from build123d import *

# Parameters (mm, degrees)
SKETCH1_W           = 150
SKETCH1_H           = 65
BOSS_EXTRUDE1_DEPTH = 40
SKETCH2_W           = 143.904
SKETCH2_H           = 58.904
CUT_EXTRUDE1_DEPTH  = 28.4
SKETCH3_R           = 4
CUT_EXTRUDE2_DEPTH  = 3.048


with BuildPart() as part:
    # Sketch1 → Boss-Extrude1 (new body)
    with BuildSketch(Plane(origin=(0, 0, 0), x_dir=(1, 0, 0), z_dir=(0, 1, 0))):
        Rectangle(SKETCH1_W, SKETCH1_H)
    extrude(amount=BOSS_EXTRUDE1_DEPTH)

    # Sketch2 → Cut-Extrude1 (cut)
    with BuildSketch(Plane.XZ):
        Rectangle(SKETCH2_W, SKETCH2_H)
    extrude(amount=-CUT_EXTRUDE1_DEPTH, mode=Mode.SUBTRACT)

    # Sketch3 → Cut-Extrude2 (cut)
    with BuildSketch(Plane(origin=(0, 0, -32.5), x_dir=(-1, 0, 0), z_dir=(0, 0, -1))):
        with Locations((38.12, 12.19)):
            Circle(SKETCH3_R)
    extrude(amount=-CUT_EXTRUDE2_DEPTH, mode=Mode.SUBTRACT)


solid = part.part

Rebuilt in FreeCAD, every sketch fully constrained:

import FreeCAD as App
import Part
import Sketcher

V = App.Vector
Q = App.Units.Quantity


def add_polygon(sketch, points):
    """Adds a closed chain of lines whose ends are joined by coincident constraints."""
    first, n = sketch.GeometryCount, len(points)
    for a, b in zip(points, points[1:] + points[:1]):
        sketch.addGeometry(Part.LineSegment(App.Vector(*a, 0), App.Vector(*b, 0)), False)
    for i in range(n):
        sketch.addConstraint(Sketcher.Constraint("Coincident", first + i, 2, first + (i + 1) % n, 1))

doc = App.newDocument("Part")
body = doc.addObject("PartDesign::Body", "Body")

# Sketch on XZ plane
sketch1 = doc.addObject("Sketcher::SketchObject", "Sketch")
body.addObject(sketch1)
sketch1.AttachmentSupport = (doc.XZ_Plane, [""])
sketch1.MapMode = "FlatFace"
add_polygon(sketch1, [(-75, -32), (-75, 32), (75, 32), (75, -32)])  # lines 0-3
sketch1.addConstraint(Sketcher.Constraint("Vertical", 0))
sketch1.addConstraint(Sketcher.Constraint("Horizontal", 1))
sketch1.addConstraint(Sketcher.Constraint("Vertical", 2))
sketch1.addConstraint(Sketcher.Constraint("Horizontal", 3))
sketch1.addConstraint(Sketcher.Constraint("Symmetric", 0, 2, 2, 2, -1, 1))
sketch1.addConstraint(Sketcher.Constraint("DistanceX", 1, 1, 1, 2, Q("150 mm")))
sketch1.addConstraint(Sketcher.Constraint("DistanceY", 0, 1, 0, 2, Q("65 mm")))
pad1 = doc.addObject("PartDesign::Pad", "Pad")
body.addObject(pad1)
pad1.Profile = sketch1
pad1.Length = 40
pad1.Reversed = True

# Sketch on XZ plane
sketch2 = doc.addObject("Sketcher::SketchObject", "Sketch001")
body.addObject(sketch2)
sketch2.AttachmentSupport = (doc.XZ_Plane, [""])
sketch2.MapMode = "FlatFace"
add_polygon(sketch2, [(-72, 29), (-72, -29), (72, -29), (72, 29)])  # lines 0-3
sketch2.addConstraint(Sketcher.Constraint("Vertical", 0))
sketch2.addConstraint(Sketcher.Constraint("Horizontal", 1))
sketch2.addConstraint(Sketcher.Constraint("Vertical", 2))
sketch2.addConstraint(Sketcher.Constraint("Horizontal", 3))
sketch2.addConstraint(Sketcher.Constraint("Symmetric", 0, 2, 2, 2, -1, 1))
sketch2.addConstraint(Sketcher.Constraint("DistanceX", 1, 1, 1, 2, Q("143.904 mm")))
sketch2.addConstraint(Sketcher.Constraint("DistanceY", 0, 2, 0, 1, Q("58.904 mm")))
pocket1 = doc.addObject("PartDesign::Pocket", "Pocket")
body.addObject(pocket1)
pocket1.Profile = sketch2
pocket1.Length = 28.4

# Sketch on XY plane
sketch3 = doc.addObject("Sketcher::SketchObject", "Sketch002")
body.addObject(sketch3)
sketch3.AttachmentSupport = (doc.XY_Plane, [""])
sketch3.MapMode = "FlatFace"
sketch3.AttachmentOffset = App.Placement(V(0, 0, -32.5), App.Rotation())
sketch3.addGeometry(Part.Circle(V(-38.1, 12.2, 0), V(0, 0, 1), 4), False)
sketch3.addConstraint(Sketcher.Constraint("Diameter", 0, Q("8 mm")))
sketch3.addConstraint(Sketcher.Constraint("DistanceX", 0, 3, -1, 1, Q("38.12 mm")))
sketch3.addConstraint(Sketcher.Constraint("DistanceY", -1, 1, 0, 3, Q("12.19 mm")))
pocket2 = doc.addObject("PartDesign::Pocket", "Pocket001")
body.addObject(pocket2)
pocket2.Profile = sketch3
pocket2.Length = 3.048
pocket2.Reversed = True

doc.recompute()
